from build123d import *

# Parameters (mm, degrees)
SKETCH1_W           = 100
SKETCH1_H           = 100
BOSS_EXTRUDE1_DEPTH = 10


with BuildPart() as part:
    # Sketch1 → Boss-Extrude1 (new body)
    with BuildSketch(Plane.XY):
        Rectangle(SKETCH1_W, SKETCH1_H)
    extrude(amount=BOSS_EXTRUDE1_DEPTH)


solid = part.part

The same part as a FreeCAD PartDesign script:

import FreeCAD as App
import Part
import Sketcher

V = App.Vector
Q = App.Units.Quantity

doc = App.newDocument("Part")
body = doc.addObject("PartDesign::Body", "Body")

sketch1 = body.newObject("Sketcher::SketchObject", "Sketch")
sketch1.AttachmentSupport = (doc.getObject("XY_Plane"), [""])
sketch1.MapMode = "FlatFace"
sketch1.addGeometry(Part.LineSegment(V(-50, 50, 0), V(-50, -50, 0)), False)
sketch1.addGeometry(Part.LineSegment(V(-50, -50, 0), V(50, -50, 0)), False)
sketch1.addGeometry(Part.LineSegment(V(50, -50, 0), V(50, 50, 0)), False)
sketch1.addGeometry(Part.LineSegment(V(50, 50, 0), V(-50, 50, 0)), False)
sketch1.addConstraint(Sketcher.Constraint("Coincident", 0, 2, 1, 1))
sketch1.addConstraint(Sketcher.Constraint("Coincident", 1, 2, 2, 1))
sketch1.addConstraint(Sketcher.Constraint("Coincident", 2, 2, 3, 1))
sketch1.addConstraint(Sketcher.Constraint("Coincident", 3, 2, 0, 1))
sketch1.addConstraint(Sketcher.Constraint("Vertical", 0))
sketch1.addConstraint(Sketcher.Constraint("Horizontal", 1))
sketch1.addConstraint(Sketcher.Constraint("Vertical", 2))
sketch1.addConstraint(Sketcher.Constraint("Horizontal", 3))
sketch1.addConstraint(Sketcher.Constraint("Symmetric", 0, 2, 2, 2, -1, 1))
sketch1.addConstraint(Sketcher.Constraint("Equal", 3, 0))
sketch1.addConstraint(Sketcher.Constraint("DistanceX", 1, 1, 1, 2, Q("100 mm")))
pad1 = body.newObject("PartDesign::Pad", "Pad")
pad1.Profile = sketch1
pad1.Length = 10

doc.recompute()
